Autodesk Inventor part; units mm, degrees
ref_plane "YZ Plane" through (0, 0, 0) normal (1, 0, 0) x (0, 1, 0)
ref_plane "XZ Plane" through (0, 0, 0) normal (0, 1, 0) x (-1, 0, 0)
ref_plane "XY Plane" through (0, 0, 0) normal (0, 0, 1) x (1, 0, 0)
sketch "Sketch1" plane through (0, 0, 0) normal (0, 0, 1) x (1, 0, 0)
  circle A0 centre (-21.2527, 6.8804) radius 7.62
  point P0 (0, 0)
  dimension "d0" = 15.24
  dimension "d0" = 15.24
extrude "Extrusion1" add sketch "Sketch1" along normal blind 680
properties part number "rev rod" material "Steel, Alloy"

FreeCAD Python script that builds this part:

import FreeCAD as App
import Part
import Sketcher

doc = App.newDocument("Part")
body = doc.addObject("PartDesign::Body", "Body")

sketch1 = doc.addObject("Sketcher::SketchObject", "Sketch")
body.addObject(sketch1)
sketch1.AttachmentSupport = (doc.XY_Plane, [""])
sketch1.MapMode = "FlatFace"
sketch1.addGeometry(Part.Circle(App.Vector(-21, 7, 0), App.Vector(0, 0, 1), 8), False)
sketch1.addConstraint([
    Sketcher.Constraint("Diameter", 0, 15.24),
    Sketcher.Constraint("DistanceX", 0, 3, -1, 1, 21.2527),
    Sketcher.Constraint("DistanceY", -1, 1, 0, 3, 6.8804),
])
pad1 = doc.addObject("PartDesign::Pad", "Pad")
body.addObject(pad1)
pad1.Profile = sketch1
pad1.Length = 680

doc.recompute()
